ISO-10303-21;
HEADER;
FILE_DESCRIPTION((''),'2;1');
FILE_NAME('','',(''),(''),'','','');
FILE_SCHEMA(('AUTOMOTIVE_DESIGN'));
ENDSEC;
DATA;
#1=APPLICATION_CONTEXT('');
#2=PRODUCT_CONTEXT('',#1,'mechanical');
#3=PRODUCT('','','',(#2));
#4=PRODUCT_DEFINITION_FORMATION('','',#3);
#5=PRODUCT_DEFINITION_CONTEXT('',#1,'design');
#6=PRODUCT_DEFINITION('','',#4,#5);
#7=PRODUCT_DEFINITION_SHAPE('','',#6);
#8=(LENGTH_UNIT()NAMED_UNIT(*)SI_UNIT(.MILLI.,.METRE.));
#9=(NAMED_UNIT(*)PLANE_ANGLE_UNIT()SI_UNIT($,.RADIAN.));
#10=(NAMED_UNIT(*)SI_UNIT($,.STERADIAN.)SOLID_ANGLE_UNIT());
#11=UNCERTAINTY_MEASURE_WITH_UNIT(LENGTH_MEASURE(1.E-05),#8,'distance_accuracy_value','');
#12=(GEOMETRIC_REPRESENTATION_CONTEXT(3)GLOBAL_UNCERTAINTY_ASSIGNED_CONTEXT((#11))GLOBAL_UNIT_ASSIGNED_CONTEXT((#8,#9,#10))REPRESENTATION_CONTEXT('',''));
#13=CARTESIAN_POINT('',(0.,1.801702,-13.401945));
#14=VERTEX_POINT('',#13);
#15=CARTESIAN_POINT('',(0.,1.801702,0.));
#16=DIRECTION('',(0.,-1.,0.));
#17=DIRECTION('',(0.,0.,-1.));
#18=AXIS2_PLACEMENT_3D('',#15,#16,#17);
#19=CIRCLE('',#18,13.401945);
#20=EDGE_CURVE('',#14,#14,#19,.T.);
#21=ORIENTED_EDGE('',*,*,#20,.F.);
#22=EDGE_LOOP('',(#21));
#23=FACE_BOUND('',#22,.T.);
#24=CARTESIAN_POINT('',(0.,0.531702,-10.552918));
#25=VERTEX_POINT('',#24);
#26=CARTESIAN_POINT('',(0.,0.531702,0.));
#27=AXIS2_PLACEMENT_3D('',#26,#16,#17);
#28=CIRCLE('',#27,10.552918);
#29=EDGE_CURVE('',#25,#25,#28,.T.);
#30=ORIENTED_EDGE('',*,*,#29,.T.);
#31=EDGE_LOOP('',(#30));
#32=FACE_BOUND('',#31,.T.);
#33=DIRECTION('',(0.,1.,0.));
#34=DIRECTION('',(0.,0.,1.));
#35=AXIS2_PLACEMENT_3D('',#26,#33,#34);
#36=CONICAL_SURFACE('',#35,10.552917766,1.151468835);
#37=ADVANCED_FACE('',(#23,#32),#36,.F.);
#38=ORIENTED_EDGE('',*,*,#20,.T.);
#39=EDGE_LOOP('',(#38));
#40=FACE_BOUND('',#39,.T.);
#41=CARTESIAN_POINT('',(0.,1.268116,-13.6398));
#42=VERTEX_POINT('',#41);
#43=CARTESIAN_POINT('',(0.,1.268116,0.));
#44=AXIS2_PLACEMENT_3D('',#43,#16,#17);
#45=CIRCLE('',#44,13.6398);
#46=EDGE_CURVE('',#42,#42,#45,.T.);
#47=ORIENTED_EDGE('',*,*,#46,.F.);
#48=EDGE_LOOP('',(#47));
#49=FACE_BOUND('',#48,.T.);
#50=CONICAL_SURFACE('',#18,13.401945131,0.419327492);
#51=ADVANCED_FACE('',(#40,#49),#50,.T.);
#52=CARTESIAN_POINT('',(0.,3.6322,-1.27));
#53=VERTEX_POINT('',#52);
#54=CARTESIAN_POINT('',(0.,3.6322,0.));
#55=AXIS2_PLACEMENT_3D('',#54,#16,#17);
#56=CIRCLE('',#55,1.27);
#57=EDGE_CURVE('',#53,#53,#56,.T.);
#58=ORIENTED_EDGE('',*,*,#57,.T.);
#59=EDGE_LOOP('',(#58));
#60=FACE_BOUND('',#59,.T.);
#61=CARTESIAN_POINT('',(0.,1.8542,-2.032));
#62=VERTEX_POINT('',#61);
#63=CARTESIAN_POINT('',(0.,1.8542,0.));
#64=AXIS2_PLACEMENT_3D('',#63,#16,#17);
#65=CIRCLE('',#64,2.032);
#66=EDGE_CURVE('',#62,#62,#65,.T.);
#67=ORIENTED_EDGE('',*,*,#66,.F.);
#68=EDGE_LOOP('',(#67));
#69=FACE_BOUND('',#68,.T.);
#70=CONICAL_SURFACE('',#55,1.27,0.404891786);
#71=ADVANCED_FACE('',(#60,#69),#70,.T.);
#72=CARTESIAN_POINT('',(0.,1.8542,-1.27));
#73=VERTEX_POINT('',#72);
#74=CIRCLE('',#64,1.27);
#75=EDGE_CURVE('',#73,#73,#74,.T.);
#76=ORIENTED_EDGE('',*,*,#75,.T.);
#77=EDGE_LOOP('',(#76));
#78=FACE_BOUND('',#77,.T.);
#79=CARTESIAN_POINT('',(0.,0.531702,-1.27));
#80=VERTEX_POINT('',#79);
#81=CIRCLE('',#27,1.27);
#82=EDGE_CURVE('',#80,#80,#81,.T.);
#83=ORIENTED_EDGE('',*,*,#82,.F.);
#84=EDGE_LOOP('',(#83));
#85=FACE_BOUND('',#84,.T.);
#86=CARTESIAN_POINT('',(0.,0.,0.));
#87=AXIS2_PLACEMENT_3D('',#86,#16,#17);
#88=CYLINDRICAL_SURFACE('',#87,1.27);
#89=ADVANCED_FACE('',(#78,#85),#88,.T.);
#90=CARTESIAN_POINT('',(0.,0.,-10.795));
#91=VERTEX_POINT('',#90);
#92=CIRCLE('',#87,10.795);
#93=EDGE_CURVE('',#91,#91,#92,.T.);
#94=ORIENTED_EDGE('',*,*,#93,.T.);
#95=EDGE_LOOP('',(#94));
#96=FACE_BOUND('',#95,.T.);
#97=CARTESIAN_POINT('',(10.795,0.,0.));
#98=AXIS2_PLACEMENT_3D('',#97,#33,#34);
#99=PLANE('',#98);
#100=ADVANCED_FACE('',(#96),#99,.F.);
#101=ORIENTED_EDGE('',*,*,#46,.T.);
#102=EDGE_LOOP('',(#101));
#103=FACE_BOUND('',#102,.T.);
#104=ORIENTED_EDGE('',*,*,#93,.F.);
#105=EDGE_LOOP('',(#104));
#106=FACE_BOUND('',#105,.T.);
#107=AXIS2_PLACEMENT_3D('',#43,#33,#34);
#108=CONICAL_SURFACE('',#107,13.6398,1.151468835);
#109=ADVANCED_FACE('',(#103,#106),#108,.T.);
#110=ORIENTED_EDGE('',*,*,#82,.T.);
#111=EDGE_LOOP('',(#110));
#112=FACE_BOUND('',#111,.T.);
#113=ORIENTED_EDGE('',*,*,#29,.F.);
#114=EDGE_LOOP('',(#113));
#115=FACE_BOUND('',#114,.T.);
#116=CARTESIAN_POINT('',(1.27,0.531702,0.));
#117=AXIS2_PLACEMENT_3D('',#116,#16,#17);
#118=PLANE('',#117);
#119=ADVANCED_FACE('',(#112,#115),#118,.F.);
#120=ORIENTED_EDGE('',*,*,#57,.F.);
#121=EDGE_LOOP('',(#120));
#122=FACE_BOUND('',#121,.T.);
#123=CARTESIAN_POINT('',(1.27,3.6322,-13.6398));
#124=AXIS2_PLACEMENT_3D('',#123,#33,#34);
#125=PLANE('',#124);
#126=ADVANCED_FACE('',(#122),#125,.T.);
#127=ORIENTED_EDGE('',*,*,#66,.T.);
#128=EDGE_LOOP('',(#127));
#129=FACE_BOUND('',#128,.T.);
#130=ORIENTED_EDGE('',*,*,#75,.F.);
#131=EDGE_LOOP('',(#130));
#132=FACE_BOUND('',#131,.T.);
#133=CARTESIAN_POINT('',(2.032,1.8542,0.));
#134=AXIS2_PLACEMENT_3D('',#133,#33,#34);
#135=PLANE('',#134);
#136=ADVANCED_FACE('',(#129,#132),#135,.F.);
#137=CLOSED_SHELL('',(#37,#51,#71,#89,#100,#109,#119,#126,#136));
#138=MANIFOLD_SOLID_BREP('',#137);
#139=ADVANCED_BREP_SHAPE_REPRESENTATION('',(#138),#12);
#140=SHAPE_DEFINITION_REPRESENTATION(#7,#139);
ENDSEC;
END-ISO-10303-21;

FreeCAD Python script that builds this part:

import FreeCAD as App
import Part
import Sketcher
from FreeCAD import Vector
Q = App.Units.Quantity

doc = App.newDocument("Part")
body = doc.addObject("PartDesign::Body", "Body")

sketch1 = doc.addObject("Sketcher::SketchObject", "Sketch")
body.addObject(sketch1)
sketch1.AttachmentSupport = (doc.XY_Plane, [""])
sketch1.MapMode = "FlatFace"
sketch1.addGeometry([
    Part.LineSegment(Vector(0, 16.3322, 0), Vector(0, 0, 0)),
    Part.LineSegment(Vector(0, 0, 0), Vector(10.795, 0, 0)),
    Part.LineSegment(Vector(10.795, 0, 0), Vector(13.6398, 1.268116, 0)),
    Part.LineSegment(Vector(13.6398, 1.268116, 0), Vector(13.401945, 1.801702, 0)),
    Part.LineSegment(Vector(13.401945, 1.801702, 0), Vector(10.552918, 0.531702, 0)),
    Part.LineSegment(Vector(10.552918, 0.531702, 0), Vector(1.27, 0.531702, 0)),
    Part.LineSegment(Vector(1.27, 0.531702, 0), Vector(1.27, 1.8542, 0)),
    Part.LineSegment(Vector(1.27, 1.8542, 0), Vector(2.032, 1.8542, 0)),
    Part.LineSegment(Vector(2.032, 1.8542, 0), Vector(1.27, 3.6322, 0)),
    Part.LineSegment(Vector(1.27, 3.6322, 0), Vector(1.27, 16.3322, 0)),
    Part.LineSegment(Vector(1.27, 16.3322, 0), Vector(0, 16.3322, 0)),
], False)
sketch1.addConstraint([
    Sketcher.Constraint("Coincident", 0, 2, 1, 1),
    Sketcher.Constraint("Coincident", 1, 2, 2, 1),
    Sketcher.Constraint("Coincident", 2, 2, 3, 1),
    Sketcher.Constraint("Coincident", 3, 2, 4, 1),
    Sketcher.Constraint("Coincident", 4, 2, 5, 1),
    Sketcher.Constraint("Coincident", 5, 2, 6, 1),
    Sketcher.Constraint("Coincident", 6, 2, 7, 1),
    Sketcher.Constraint("Coincident", 7, 2, 8, 1),
    Sketcher.Constraint("Coincident", 8, 2, 9, 1),
    Sketcher.Constraint("Coincident", 9, 2, 10, 1),
    Sketcher.Constraint("Coincident", 10, 2, 0, 1),
    Sketcher.Constraint("Vertical", 0),
    Sketcher.Constraint("Horizontal", 1),
    Sketcher.Constraint("Horizontal", 5),
    Sketcher.Constraint("Vertical", 6),
    Sketcher.Constraint("Horizontal", 7),
    Sketcher.Constraint("Vertical", 9),
    Sketcher.Constraint("Horizontal", 10),
    Sketcher.Constraint("Coincident", 0, 2, -1, 1),
    Sketcher.Constraint("Perpendicular", 2, 3),
    Sketcher.Constraint("Perpendicular", 3, 4),
    Sketcher.Constraint("Vertical", 6, 2, 8, 2),
    Sketcher.Constraint("DistanceY", 9, 1, 9, 2, Q("0.5 in")),
    Sketcher.Constraint("DistanceX", 7, 1, 7, 2, Q("0.03 in")),
    Sketcher.Constraint("DistanceX", 10, 2, 10, 1, Q("0.05 in")),
    Sketcher.Constraint("DistanceX", 1, 1, 1, 2, Q("0.425 in")),
    Sketcher.Constraint("DistanceY", 0, 2, 0, 1, Q("0.643 in")),
    Sketcher.Constraint("DistanceY", 4, 2, 3, 2, Q("0.05 in")),
    Sketcher.Constraint("DistanceY", 6, 2, 8, 2, Q("0.07 in")),
    Sketcher.Constraint("Distance", 3, Q("0.023 in")),
    Sketcher.Constraint("DistanceX", -1, 1, 2, 2, Q("0.537 in")),
    Sketcher.Constraint("Distance", 4, 3.119272),
])
revolution = doc.addObject("PartDesign::Revolution", "Revolution")
body.addObject(revolution)
revolution.Profile = sketch1
revolution.ReferenceAxis = (sketch1, ["V_Axis"])
revolution.Angle = 360

sketch2 = doc.addObject("Sketcher::SketchObject", "Sketch001")
body.addObject(sketch2)
sketch2.AttachmentSupport = (doc.XY_Plane, [""])
sketch2.MapMode = "FlatFace"
sketch2.addGeometry([
    Part.LineSegment(Vector(-1.27, 16.3322, 0), Vector(-1.27, 3.6322, 0)),
    Part.LineSegment(Vector(-1.27, 3.6322, 0), Vector(1.27, 3.6322, 0)),
    Part.LineSegment(Vector(1.27, 3.6322, 0), Vector(1.27, 16.3322, 0)),
    Part.LineSegment(Vector(1.27, 16.3322, 0), Vector(-1.27, 16.3322, 0)),
], False)
sketch2.addConstraint([
    Sketcher.Constraint("Coincident", 0, 2, 1, 1),
    Sketcher.Constraint("Coincident", 1, 2, 2, 1),
    Sketcher.Constraint("Coincident", 2, 2, 3, 1),
    Sketcher.Constraint("Coincident", 3, 2, 0, 1),
    Sketcher.Constraint("Vertical", 0),
    Sketcher.Constraint("Horizontal", 1),
    Sketcher.Constraint("Vertical", 2),
    Sketcher.Constraint("Horizontal", 3),
    Sketcher.Constraint("DistanceX", 1, 1, 1, 2, Q("0.1 in")),
    Sketcher.Constraint("DistanceY", 0, 2, 0, 1, Q("0.5 in")),
    Sketcher.Constraint("DistanceX", 0, 2, -1, 1, Q("0.05 in")),
    Sketcher.Constraint("DistanceY", -1, 1, 0, 2, Q("0.143 in")),
])
pocket1 = doc.addObject("PartDesign::Pocket", "Pocket")
body.addObject(pocket1)
pocket1.Profile = sketch2
pocket1.Type = "ThroughAll"
pocket1.Midplane = True

doc.recompute()
